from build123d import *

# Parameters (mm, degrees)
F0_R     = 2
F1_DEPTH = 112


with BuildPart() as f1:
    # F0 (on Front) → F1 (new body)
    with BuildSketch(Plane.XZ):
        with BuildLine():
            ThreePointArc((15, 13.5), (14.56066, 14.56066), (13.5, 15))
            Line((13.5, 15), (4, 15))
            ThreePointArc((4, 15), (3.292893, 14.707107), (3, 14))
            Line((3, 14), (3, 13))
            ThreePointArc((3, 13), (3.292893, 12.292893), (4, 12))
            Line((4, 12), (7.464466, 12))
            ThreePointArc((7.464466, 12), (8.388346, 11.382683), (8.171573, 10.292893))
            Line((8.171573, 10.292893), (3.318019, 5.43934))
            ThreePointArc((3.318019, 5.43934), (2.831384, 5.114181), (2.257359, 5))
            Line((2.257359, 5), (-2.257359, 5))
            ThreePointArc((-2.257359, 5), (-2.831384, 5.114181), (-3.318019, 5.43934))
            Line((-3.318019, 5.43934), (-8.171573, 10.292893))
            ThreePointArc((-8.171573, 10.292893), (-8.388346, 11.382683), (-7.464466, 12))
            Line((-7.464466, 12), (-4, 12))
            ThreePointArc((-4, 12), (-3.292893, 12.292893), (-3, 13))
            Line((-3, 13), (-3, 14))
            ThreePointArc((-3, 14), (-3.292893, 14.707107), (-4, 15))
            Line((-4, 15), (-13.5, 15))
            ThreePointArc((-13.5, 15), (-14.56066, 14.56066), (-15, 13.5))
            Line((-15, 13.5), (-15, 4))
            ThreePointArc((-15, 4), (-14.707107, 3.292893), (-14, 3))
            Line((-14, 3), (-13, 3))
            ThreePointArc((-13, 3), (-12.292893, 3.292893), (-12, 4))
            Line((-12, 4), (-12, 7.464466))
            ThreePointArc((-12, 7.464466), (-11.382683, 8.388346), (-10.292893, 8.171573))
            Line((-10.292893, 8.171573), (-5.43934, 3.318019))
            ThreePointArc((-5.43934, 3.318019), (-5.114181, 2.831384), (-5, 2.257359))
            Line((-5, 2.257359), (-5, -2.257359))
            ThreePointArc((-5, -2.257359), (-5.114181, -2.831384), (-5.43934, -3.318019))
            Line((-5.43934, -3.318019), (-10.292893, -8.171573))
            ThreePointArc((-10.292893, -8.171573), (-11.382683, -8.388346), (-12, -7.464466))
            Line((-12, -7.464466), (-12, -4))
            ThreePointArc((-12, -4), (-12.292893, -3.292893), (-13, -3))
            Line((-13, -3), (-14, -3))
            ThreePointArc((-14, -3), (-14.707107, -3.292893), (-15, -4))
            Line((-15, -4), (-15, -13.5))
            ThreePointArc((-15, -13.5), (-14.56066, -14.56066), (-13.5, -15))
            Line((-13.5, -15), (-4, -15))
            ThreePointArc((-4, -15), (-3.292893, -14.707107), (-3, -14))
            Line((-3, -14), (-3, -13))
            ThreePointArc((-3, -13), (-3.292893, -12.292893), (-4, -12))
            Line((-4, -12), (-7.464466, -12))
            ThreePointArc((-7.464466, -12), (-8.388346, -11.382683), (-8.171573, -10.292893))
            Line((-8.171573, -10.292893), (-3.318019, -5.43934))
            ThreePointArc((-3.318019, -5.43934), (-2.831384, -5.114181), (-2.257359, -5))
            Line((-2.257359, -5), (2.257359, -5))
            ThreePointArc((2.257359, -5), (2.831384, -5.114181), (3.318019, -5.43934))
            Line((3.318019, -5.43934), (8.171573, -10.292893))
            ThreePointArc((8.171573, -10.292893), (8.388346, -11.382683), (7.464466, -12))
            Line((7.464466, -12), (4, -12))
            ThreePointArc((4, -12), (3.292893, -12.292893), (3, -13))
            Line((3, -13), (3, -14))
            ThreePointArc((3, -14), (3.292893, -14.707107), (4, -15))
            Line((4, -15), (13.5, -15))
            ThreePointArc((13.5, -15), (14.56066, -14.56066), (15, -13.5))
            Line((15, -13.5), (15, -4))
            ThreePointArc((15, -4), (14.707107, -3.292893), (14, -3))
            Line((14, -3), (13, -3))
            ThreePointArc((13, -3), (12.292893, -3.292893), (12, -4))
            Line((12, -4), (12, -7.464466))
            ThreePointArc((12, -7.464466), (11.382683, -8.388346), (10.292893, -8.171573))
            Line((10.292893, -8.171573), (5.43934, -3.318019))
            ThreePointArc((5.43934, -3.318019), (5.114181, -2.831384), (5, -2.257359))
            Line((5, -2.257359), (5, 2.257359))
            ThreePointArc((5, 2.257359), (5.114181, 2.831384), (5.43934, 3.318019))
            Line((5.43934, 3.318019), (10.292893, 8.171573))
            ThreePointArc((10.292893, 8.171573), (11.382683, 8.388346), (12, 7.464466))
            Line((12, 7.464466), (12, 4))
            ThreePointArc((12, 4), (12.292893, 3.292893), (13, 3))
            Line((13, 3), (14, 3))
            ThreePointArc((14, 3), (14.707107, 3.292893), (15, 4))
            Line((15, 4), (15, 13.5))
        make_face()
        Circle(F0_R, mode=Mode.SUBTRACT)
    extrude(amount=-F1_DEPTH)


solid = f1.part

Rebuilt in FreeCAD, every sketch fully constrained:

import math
import FreeCAD as App
import Part
import Sketcher
Q = App.Units.Quantity

doc = App.newDocument("Part")
params = doc.addObject("Spreadsheet::Sheet", "Params")
for row, (alias, value) in enumerate([
    ("sketch1_diameter", "4 mm"),
    ("sketch1_radius", "0.999999 mm"),
    ("sketch1_radius2", "1.500001 mm"),
    ("sketch1_width", "1 mm"),
    ("sketch1_width2", "9.5 mm"),
    ("pad1_length", "112 mm"),
], start=1):
    params.set(f"A{row}", alias)
    params.set(f"B{row}", "=" + value)
    params.setAlias(f"B{row}", alias)

body = doc.addObject("PartDesign::Body", "Body")

sketch1 = doc.addObject("Sketcher::SketchObject", "Sketch")
body.addObject(sketch1)
sketch1.AttachmentSupport = (doc.XZ_Plane, [""])
sketch1.MapMode = "FlatFace"
sketch1.addGeometry([
    Part.ArcOfCircle(Part.Circle(App.Vector(13.5, 13.5, 0), App.Vector(0, 0, 1), 1.5), math.radians(0), math.radians(90)),
    Part.LineSegment(App.Vector(13.5, 15, 0), App.Vector(4, 15, 0)),
    Part.ArcOfCircle(Part.Circle(App.Vector(4, 14, 0), App.Vector(0, 0, 1), 1), math.radians(90), math.radians(180)),
    Part.LineSegment(App.Vector(3, 14, 0), App.Vector(3, 13, 0)),
    Part.ArcOfCircle(Part.Circle(App.Vector(4, 13, 0), App.Vector(0, 0, 1), 1), math.radians(180), math.radians(270)),
    Part.LineSegment(App.Vector(4, 12, 0), App.Vector(7.5, 12, 0)),
    Part.ArcOfCircle(Part.Circle(App.Vector(7.5, 11, 0), App.Vector(0, 0, 1), 1), math.radians(-45), math.radians(90)),
    Part.LineSegment(App.Vector(8.2, 10.3, 0), App.Vector(3.3, 5.4, 0)),
    Part.ArcOfCircle(Part.Circle(App.Vector(2.3, 6.5, 0), App.Vector(0, 0, 1), 1.5), math.radians(-90), math.radians(-45)),
    Part.LineSegment(App.Vector(2.3, 5, 0), App.Vector(-2.3, 5, 0)),
    Part.ArcOfCircle(Part.Circle(App.Vector(-2.3, 6.5, 0), App.Vector(0, 0, 1), 1.5), math.radians(-135), math.radians(-90)),
    Part.LineSegment(App.Vector(-3.3, 5.4, 0), App.Vector(-8.2, 10.3, 0)),
    Part.ArcOfCircle(Part.Circle(App.Vector(-7.5, 11, 0), App.Vector(0, 0, 1), 1), math.radians(90), math.radians(225)),
    Part.LineSegment(App.Vector(-7.5, 12, 0), App.Vector(-4, 12, 0)),
    Part.ArcOfCircle(Part.Circle(App.Vector(-4, 13, 0), App.Vector(0, 0, 1), 1), math.radians(-90), math.radians(0)),
    Part.LineSegment(App.Vector(-3, 13, 0), App.Vector(-3, 14, 0)),
    Part.ArcOfCircle(Part.Circle(App.Vector(-4, 14, 0), App.Vector(0, 0, 1), 1), math.radians(0), math.radians(90)),
    Part.LineSegment(App.Vector(-4, 15, 0), App.Vector(-13.5, 15, 0)),
    Part.ArcOfCircle(Part.Circle(App.Vector(-13.5, 13.5, 0), App.Vector(0, 0, 1), 1.5), math.radians(90), math.radians(180)),
    Part.LineSegment(App.Vector(-15, 13.5, 0), App.Vector(-15, 4, 0)),
    Part.ArcOfCircle(Part.Circle(App.Vector(-14, 4, 0), App.Vector(0, 0, 1), 1), math.radians(180), math.radians(270)),
    Part.LineSegment(App.Vector(-14, 3, 0), App.Vector(-13, 3, 0)),
    Part.ArcOfCircle(Part.Circle(App.Vector(-13, 4, 0), App.Vector(0, 0, 1), 1), math.radians(-90), math.radians(0)),
    Part.LineSegment(App.Vector(-12, 4, 0), App.Vector(-12, 7.5, 0)),
    Part.ArcOfCircle(Part.Circle(App.Vector(-11, 7.5, 0), App.Vector(0, 0, 1), 1), math.radians(45), math.radians(180)),
    Part.LineSegment(App.Vector(-10.3, 8.2, 0), App.Vector(-5.4, 3.3, 0)),
    Part.ArcOfCircle(Part.Circle(App.Vector(-6.5, 2.3, 0), App.Vector(0, 0, 1), 1.5), math.radians(0), math.radians(45)),
    Part.LineSegment(App.Vector(-5, 2.3, 0), App.Vector(-5, -2.3, 0)),
    Part.ArcOfCircle(Part.Circle(App.Vector(-6.5, -2.3, 0), App.Vector(0, 0, 1), 1.5), math.radians(-45), math.radians(0)),
    Part.LineSegment(App.Vector(-5.4, -3.3, 0), App.Vector(-10.3, -8.2, 0)),
    Part.ArcOfCircle(Part.Circle(App.Vector(-11, -7.5, 0), App.Vector(0, 0, 1), 1), math.radians(180), math.radians(315)),
    Part.LineSegment(App.Vector(-12, -7.5, 0), App.Vector(-12, -4, 0)),
    Part.ArcOfCircle(Part.Circle(App.Vector(-13, -4, 0), App.Vector(0, 0, 1), 1), math.radians(0), math.radians(90)),
    Part.LineSegment(App.Vector(-13, -3, 0), App.Vector(-14, -3, 0)),
    Part.ArcOfCircle(Part.Circle(App.Vector(-14, -4, 0), App.Vector(0, 0, 1), 1), math.radians(90), math.radians(180)),
    Part.LineSegment(App.Vector(-15, -4, 0), App.Vector(-15, -13.5, 0)),
    Part.ArcOfCircle(Part.Circle(App.Vector(-13.5, -13.5, 0), App.Vector(0, 0, 1), 1.5), math.radians(-180), math.radians(-90)),
    Part.LineSegment(App.Vector(-13.5, -15, 0), App.Vector(-4, -15, 0)),
    Part.ArcOfCircle(Part.Circle(App.Vector(-4, -14, 0), App.Vector(0, 0, 1), 1), math.radians(-90), math.radians(0)),
    Part.LineSegment(App.Vector(-3, -14, 0), App.Vector(-3, -13, 0)),
    Part.ArcOfCircle(Part.Circle(App.Vector(-4, -13, 0), App.Vector(0, 0, 1), 1), math.radians(0), math.radians(90)),
    Part.LineSegment(App.Vector(-4, -12, 0), App.Vector(-7.5, -12, 0)),
    Part.ArcOfCircle(Part.Circle(App.Vector(-7.5, -11, 0), App.Vector(0, 0, 1), 1), math.radians(135), math.radians(270)),
    Part.LineSegment(App.Vector(-8.2, -10.3, 0), App.Vector(-3.3, -5.4, 0)),
    Part.ArcOfCircle(Part.Circle(App.Vector(-2.3, -6.5, 0), App.Vector(0, 0, 1), 1.5), math.radians(90), math.radians(135)),
    Part.LineSegment(App.Vector(-2.3, -5, 0), App.Vector(2.3, -5, 0)),
    Part.ArcOfCircle(Part.Circle(App.Vector(2.3, -6.5, 0), App.Vector(0, 0, 1), 1.5), math.radians(45), math.radians(90)),
    Part.LineSegment(App.Vector(3.3, -5.4, 0), App.Vector(8.2, -10.3, 0)),
    Part.ArcOfCircle(Part.Circle(App.Vector(7.5, -11, 0), App.Vector(0, 0, 1), 1), math.radians(-90), math.radians(45)),
    Part.LineSegment(App.Vector(7.5, -12, 0), App.Vector(4, -12, 0)),
    Part.ArcOfCircle(Part.Circle(App.Vector(4, -13, 0), App.Vector(0, 0, 1), 1), math.radians(90), math.radians(180)),
    Part.LineSegment(App.Vector(3, -13, 0), App.Vector(3, -14, 0)),
    Part.ArcOfCircle(Part.Circle(App.Vector(4, -14, 0), App.Vector(0, 0, 1), 1), math.radians(180), math.radians(270)),
    Part.LineSegment(App.Vector(4, -15, 0), App.Vector(13.5, -15, 0)),
    Part.ArcOfCircle(Part.Circle(App.Vector(13.5, -13.5, 0), App.Vector(0, 0, 1), 1.5), math.radians(-90), math.radians(0)),
    Part.LineSegment(App.Vector(15, -13.5, 0), App.Vector(15, -4, 0)),
    Part.ArcOfCircle(Part.Circle(App.Vector(14, -4, 0), App.Vector(0, 0, 1), 1), math.radians(0), math.radians(90)),
    Part.LineSegment(App.Vector(14, -3, 0), App.Vector(13, -3, 0)),
    Part.ArcOfCircle(Part.Circle(App.Vector(13, -4, 0), App.Vector(0, 0, 1), 1), math.radians(90), math.radians(180)),
    Part.LineSegment(App.Vector(12, -4, 0), App.Vector(12, -7.5, 0)),
    Part.ArcOfCircle(Part.Circle(App.Vector(11, -7.5, 0), App.Vector(0, 0, 1), 1), math.radians(-135), math.radians(0)),
    Part.LineSegment(App.Vector(10.3, -8.2, 0), App.Vector(5.4, -3.3, 0)),
    Part.ArcOfCircle(Part.Circle(App.Vector(6.5, -2.3, 0), App.Vector(0, 0, 1), 1.5), math.radians(-180), math.radians(-135)),
    Part.LineSegment(App.Vector(5, -2.3, 0), App.Vector(5, 2.3, 0)),
    Part.ArcOfCircle(Part.Circle(App.Vector(6.5, 2.3, 0), App.Vector(0, 0, 1), 1.5), math.radians(135), math.radians(180)),
    Part.LineSegment(App.Vector(5.4, 3.3, 0), App.Vector(10.3, 8.2, 0)),
    Part.ArcOfCircle(Part.Circle(App.Vector(11, 7.5, 0), App.Vector(0, 0, 1), 1), math.radians(0), math.radians(135)),
    Part.LineSegment(App.Vector(12, 7.5, 0), App.Vector(12, 4, 0)),
    Part.ArcOfCircle(Part.Circle(App.Vector(13, 4, 0), App.Vector(0, 0, 1), 1), math.radians(180), math.radians(270)),
    Part.LineSegment(App.Vector(13, 3, 0), App.Vector(14, 3, 0)),
    Part.ArcOfCircle(Part.Circle(App.Vector(14, 4, 0), App.Vector(0, 0, 1), 1), math.radians(-90), math.radians(0)),
    Part.LineSegment(App.Vector(15, 4, 0), App.Vector(15, 13.5, 0)),
    Part.Circle(App.Vector(0, 0, 0), App.Vector(0, 0, 1), 2),
], False)
sketch1.addConstraint([
    Sketcher.Constraint("Tangent", 0, 2, 1, 1),
    Sketcher.Constraint("Tangent", 1, 2, 2, 1),
    Sketcher.Constraint("Tangent", 2, 2, 3, 1),
    Sketcher.Constraint("Tangent", 3, 2, 4, 1),
    Sketcher.Constraint("Tangent", 4, 2, 5, 1),
    Sketcher.Constraint("Tangent", 5, 2, 6, 2),
    Sketcher.Constraint("Tangent", 6, 1, 7, 1),
    Sketcher.Constraint("Tangent", 7, 2, 8, 2),
    Sketcher.Constraint("Tangent", 8, 1, 9, 1),
    Sketcher.Constraint("Tangent", 9, 2, 10, 2),
    Sketcher.Constraint("Tangent", 10, 1, 11, 1),
    Sketcher.Constraint("Tangent", 11, 2, 12, 2),
    Sketcher.Constraint("Tangent", 12, 1, 13, 1),
    Sketcher.Constraint("Tangent", 13, 2, 14, 1),
    Sketcher.Constraint("Tangent", 14, 2, 15, 1),
    Sketcher.Constraint("Tangent", 15, 2, 16, 1),
    Sketcher.Constraint("Tangent", 16, 2, 17, 1),
    Sketcher.Constraint("Tangent", 17, 2, 18, 1),
    Sketcher.Constraint("Tangent", 18, 2, 19, 1),
    Sketcher.Constraint("Tangent", 19, 2, 20, 1),
    Sketcher.Constraint("Tangent", 20, 2, 21, 1),
    Sketcher.Constraint("Tangent", 21, 2, 22, 1),
    Sketcher.Constraint("Tangent", 22, 2, 23, 1),
    Sketcher.Constraint("Tangent", 23, 2, 24, 2),
    Sketcher.Constraint("Tangent", 24, 1, 25, 1),
    Sketcher.Constraint("Tangent", 25, 2, 26, 2),
    Sketcher.Constraint("Tangent", 26, 1, 27, 1),
    Sketcher.Constraint("Tangent", 27, 2, 28, 2),
    Sketcher.Constraint("Tangent", 28, 1, 29, 1),
    Sketcher.Constraint("Tangent", 29, 2, 30, 2),
    Sketcher.Constraint("Tangent", 30, 1, 31, 1),
    Sketcher.Constraint("Tangent", 31, 2, 32, 1),
    Sketcher.Constraint("Tangent", 32, 2, 33, 1),
    Sketcher.Constraint("Tangent", 33, 2, 34, 1),
    Sketcher.Constraint("Tangent", 34, 2, 35, 1),
    Sketcher.Constraint("Tangent", 35, 2, 36, 1),
    Sketcher.Constraint("Tangent", 36, 2, 37, 1),
    Sketcher.Constraint("Tangent", 37, 2, 38, 1),
    Sketcher.Constraint("Tangent", 38, 2, 39, 1),
    Sketcher.Constraint("Tangent", 39, 2, 40, 1),
    Sketcher.Constraint("Tangent", 40, 2, 41, 1),
    Sketcher.Constraint("Tangent", 41, 2, 42, 2),
    Sketcher.Constraint("Tangent", 42, 1, 43, 1),
    Sketcher.Constraint("Tangent", 43, 2, 44, 2),
    Sketcher.Constraint("Tangent", 44, 1, 45, 1),
    Sketcher.Constraint("Tangent", 45, 2, 46, 2),
    Sketcher.Constraint("Tangent", 46, 1, 47, 1),
    Sketcher.Constraint("Tangent", 47, 2, 48, 2),
    Sketcher.Constraint("Tangent", 48, 1, 49, 1),
    Sketcher.Constraint("Tangent", 49, 2, 50, 1),
    Sketcher.Constraint("Tangent", 50, 2, 51, 1),
    Sketcher.Constraint("Tangent", 51, 2, 52, 1),
    Sketcher.Constraint("Tangent", 52, 2, 53, 1),
    Sketcher.Constraint("Tangent", 53, 2, 54, 1),
    Sketcher.Constraint("Tangent", 54, 2, 55, 1),
    Sketcher.Constraint("Tangent", 55, 2, 56, 1),
    Sketcher.Constraint("Tangent", 56, 2, 57, 1),
    Sketcher.Constraint("Tangent", 57, 2, 58, 1),
    Sketcher.Constraint("Tangent", 58, 2, 59, 1),
    Sketcher.Constraint("Tangent", 59, 2, 60, 2),
    Sketcher.Constraint("Tangent", 60, 1, 61, 1),
    Sketcher.Constraint("Tangent", 61, 2, 62, 2),
    Sketcher.Constraint("Tangent", 62, 1, 63, 1),
    Sketcher.Constraint("Tangent", 63, 2, 64, 2),
    Sketcher.Constraint("Tangent", 64, 1, 65, 1),
    Sketcher.Constraint("Tangent", 65, 2, 66, 2),
    Sketcher.Constraint("Tangent", 66, 1, 67, 1),
    Sketcher.Constraint("Tangent", 67, 2, 68, 1),
    Sketcher.Constraint("Tangent", 68, 2, 69, 1),
    Sketcher.Constraint("Tangent", 69, 2, 70, 1),
    Sketcher.Constraint("Tangent", 70, 2, 71, 1),
    Sketcher.Constraint("Tangent", 71, 2, 0, 1),
    Sketcher.Constraint("Horizontal", 1),
    Sketcher.Constraint("Vertical", 3),
    Sketcher.Constraint("Horizontal", 5),
    Sketcher.Constraint("Horizontal", 9),
    Sketcher.Constraint("Horizontal", 13),
    Sketcher.Constraint("Vertical", 15),
    Sketcher.Constraint("Horizontal", 17),
    Sketcher.Constraint("Vertical", 19),
    Sketcher.Constraint("Horizontal", 21),
    Sketcher.Constraint("Vertical", 23),
    Sketcher.Constraint("Vertical", 27),
    Sketcher.Constraint("Vertical", 31),
    Sketcher.Constraint("Horizontal", 33),
    Sketcher.Constraint("Vertical", 35),
    Sketcher.Constraint("Horizontal", 37),
    Sketcher.Constraint("Vertical", 39),
    Sketcher.Constraint("Horizontal", 41),
    Sketcher.Constraint("Horizontal", 45),
    Sketcher.Constraint("Horizontal", 49),
    Sketcher.Constraint("Vertical", 51),
    Sketcher.Constraint("Horizontal", 53),
    Sketcher.Constraint("Vertical", 55),
    Sketcher.Constraint("Horizontal", 57),
    Sketcher.Constraint("Vertical", 59),
    Sketcher.Constraint("Vertical", 63),
    Sketcher.Constraint("Vertical", 67),
    Sketcher.Constraint("Horizontal", 69),
    Sketcher.Constraint("Vertical", 71),
    Sketcher.Constraint("Coincident", 72, 3, -1, 1),
    Sketcher.Constraint("Equal", 2, 4),
    Sketcher.Constraint("Equal", 4, 6),
    Sketcher.Constraint("Equal", 0, 8),
    Sketcher.Constraint("Equal", 8, 10),
    Sketcher.Constraint("Equal", 6, 12),
    Sketcher.Constraint("Equal", 12, 14),
    Sketcher.Constraint("Equal", 14, 16),
    Sketcher.Constraint("Equal", 10, 18),
    Sketcher.Constraint("Equal", 16, 20),
    Sketcher.Constraint("Equal", 20, 22),
    Sketcher.Constraint("Equal", 22, 24),
    Sketcher.Constraint("Equal", 18, 26),
    Sketcher.Constraint("Equal", 26, 28),
    Sketcher.Constraint("Equal", 24, 30),
    Sketcher.Constraint("Equal", 30, 32),
    Sketcher.Constraint("Equal", 32, 34),
    Sketcher.Constraint("Equal", 28, 36),
    Sketcher.Constraint("Equal", 34, 38),
    Sketcher.Constraint("Equal", 38, 40),
    Sketcher.Constraint("Equal", 40, 42),
    Sketcher.Constraint("Equal", 36, 44),
    Sketcher.Constraint("Equal", 44, 46),
    Sketcher.Constraint("Equal", 42, 48),
    Sketcher.Constraint("Equal", 48, 50),
    Sketcher.Constraint("Equal", 50, 52),
    Sketcher.Constraint("Equal", 46, 54),
    Sketcher.Constraint("Equal", 52, 56),
    Sketcher.Constraint("Equal", 56, 58),
    Sketcher.Constraint("Equal", 58, 60),
    Sketcher.Constraint("Equal", 54, 62),
    Sketcher.Constraint("Equal", 62, 64),
    Sketcher.Constraint("Equal", 60, 66),
    Sketcher.Constraint("Equal", 66, 68),
    Sketcher.Constraint("Equal", 68, 70),
    Sketcher.Constraint("Symmetric", 0, 3, 36, 3, -1, 1),
    Sketcher.Constraint("Symmetric", 4, 3, 40, 3, -1, 1),
    Sketcher.Constraint("Symmetric", 8, 3, 44, 3, -1, 1),
    Sketcher.Constraint("Symmetric", 12, 3, 48, 3, -1, 1),
    Sketcher.Constraint("Symmetric", 16, 3, 52, 3, -1, 1),
    Sketcher.Constraint("Symmetric", 20, 3, 56, 3, -1, 1),
    Sketcher.Constraint("Symmetric", 24, 3, 60, 3, -1, 1),
    Sketcher.Constraint("Symmetric", 26, 3, 62, 3, -1, 1),
    Sketcher.Constraint("Symmetric", 30, 3, 66, 3, -1, 1),
    Sketcher.Constraint("Symmetric", 6, 3, 12, 3, -2),
    Sketcher.Constraint("Symmetric", 2, 3, 16, 3, -2),
    Sketcher.Constraint("Symmetric", 34, 3, 56, 3, -2),
    Sketcher.Constraint("Symmetric", 30, 3, 60, 3, -2),
    Sketcher.Constraint("Symmetric", 43, 2, 46, 1, -2),
    Sketcher.Constraint("Perpendicular", 7, 11),
    Sketcher.Constraint("Parallel", 11, 25),
    Sketcher.Constraint("Perpendicular", 25, 29),
    Sketcher.Constraint("Perpendicular", 43, 47),
    Sketcher.Constraint("Perpendicular", 61, 65),
    Sketcher.Constraint("Horizontal", 22, 3, 68, 3),
    Sketcher.Constraint("Equal", 69, 3),
    Sketcher.Constraint("Equal", 53, 19),
    Sketcher.Constraint("Equal", 49, 23),
    Sketcher.Constraint("Equal", 45, 27),
    Sketcher.Constraint("Equal", 11, 25),
    Sketcher.Constraint("Diameter", 72, Q("4 mm")),
    Sketcher.Constraint("Radius", 2, Q("0.999999 mm")),
    Sketcher.Constraint("Radius", 0, Q("1.500001 mm")),
    Sketcher.Constraint("DistanceX", 21, 1, 21, 2, Q("1 mm")),
    Sketcher.Constraint("DistanceX", 1, 2, 1, 1, Q("9.5 mm")),
    Sketcher.Constraint("DistanceX", -1, 1, 2, 3, Q("3.999999 mm")),
    Sketcher.Constraint("DistanceY", -1, 1, 8, 1, Q("5 mm")),
    Sketcher.Constraint("DistanceX", 9, 2, 9, 1, Q("4.514718 mm")),
])
sketch1.setExpression("Constraints[160]", "Params.sketch1_diameter")
sketch1.setExpression("Constraints[161]", "Params.sketch1_radius")
sketch1.setExpression("Constraints[162]", "Params.sketch1_radius2")
sketch1.setExpression("Constraints[163]", "Params.sketch1_width")
sketch1.setExpression("Constraints[164]", "Params.sketch1_width2")
pad1 = doc.addObject("PartDesign::Pad", "Pad")
body.addObject(pad1)
pad1.Profile = sketch1
pad1.setExpression("Length", "Params.pad1_length")
pad1.Reversed = True

doc.recompute()
